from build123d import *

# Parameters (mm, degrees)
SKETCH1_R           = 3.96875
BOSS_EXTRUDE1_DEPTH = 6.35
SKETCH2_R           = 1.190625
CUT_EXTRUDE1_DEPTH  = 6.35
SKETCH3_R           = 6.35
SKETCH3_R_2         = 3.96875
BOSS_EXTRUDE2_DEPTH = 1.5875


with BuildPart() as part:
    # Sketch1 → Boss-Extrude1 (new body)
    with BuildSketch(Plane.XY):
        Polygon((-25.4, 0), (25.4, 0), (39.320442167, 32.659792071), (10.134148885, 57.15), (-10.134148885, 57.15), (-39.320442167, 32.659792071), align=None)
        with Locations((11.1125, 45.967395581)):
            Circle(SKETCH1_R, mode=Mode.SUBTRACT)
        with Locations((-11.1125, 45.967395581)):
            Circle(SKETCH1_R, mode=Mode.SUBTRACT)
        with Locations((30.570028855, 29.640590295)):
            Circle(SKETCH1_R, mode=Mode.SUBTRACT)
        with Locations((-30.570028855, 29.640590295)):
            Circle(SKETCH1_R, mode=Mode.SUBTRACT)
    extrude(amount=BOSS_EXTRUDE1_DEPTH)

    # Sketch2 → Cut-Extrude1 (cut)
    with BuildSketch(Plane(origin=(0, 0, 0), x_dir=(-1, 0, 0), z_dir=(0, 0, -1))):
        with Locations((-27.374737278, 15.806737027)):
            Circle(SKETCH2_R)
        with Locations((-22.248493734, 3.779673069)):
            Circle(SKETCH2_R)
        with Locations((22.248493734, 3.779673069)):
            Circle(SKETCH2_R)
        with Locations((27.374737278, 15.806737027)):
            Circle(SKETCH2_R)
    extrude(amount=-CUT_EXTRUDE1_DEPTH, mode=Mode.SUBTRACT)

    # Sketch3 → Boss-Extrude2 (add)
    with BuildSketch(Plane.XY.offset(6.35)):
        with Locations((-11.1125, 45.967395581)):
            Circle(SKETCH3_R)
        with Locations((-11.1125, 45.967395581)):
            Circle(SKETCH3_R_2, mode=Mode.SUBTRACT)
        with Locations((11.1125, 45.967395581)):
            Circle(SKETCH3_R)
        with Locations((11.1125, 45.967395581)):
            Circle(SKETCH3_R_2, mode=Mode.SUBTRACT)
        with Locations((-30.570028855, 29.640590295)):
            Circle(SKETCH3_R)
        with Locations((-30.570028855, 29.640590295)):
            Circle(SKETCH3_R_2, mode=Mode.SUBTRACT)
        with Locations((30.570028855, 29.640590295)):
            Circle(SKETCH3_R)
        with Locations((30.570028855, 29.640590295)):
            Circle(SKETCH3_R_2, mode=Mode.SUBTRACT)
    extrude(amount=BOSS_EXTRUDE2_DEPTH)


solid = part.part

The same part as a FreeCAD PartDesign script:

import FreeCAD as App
import Part
import Sketcher
from FreeCAD import Vector
Q = App.Units.Quantity

doc = App.newDocument("Part")
body = doc.addObject("PartDesign::Body", "Body")

# Sketch on XY plane
sketch1 = body.newObject("Sketcher::SketchObject", "Sketch")
sketch1.AttachmentSupport = (doc.getObject("XY_Plane"), [""])
sketch1.MapMode = "FlatFace"
sketch1.addGeometry([
    Part.LineSegment(Vector(-25.4, 0, 0), Vector(25.4, 0, 0)),  # 0
    Part.LineSegment(Vector(25.4, 0, 0), Vector(39.3, 32.7, 0)),  # 1
    Part.LineSegment(Vector(39.3, 32.7, 0), Vector(10.1, 57.1, 0)),  # 2
    Part.LineSegment(Vector(10.1, 57.1, 0), Vector(-10.1, 57.1, 0)),  # 3
    Part.LineSegment(Vector(-10.1, 57.1, 0), Vector(-39.3, 32.7, 0)),  # 4
    Part.LineSegment(Vector(-39.3, 32.7, 0), Vector(-25.4, 0, 0)),  # 5
    Part.Circle(Vector(-30.6, 29.6, 0), Vector(0, 0, 1), 4),  # 6
    Part.Circle(Vector(30.6, 29.6, 0), Vector(0, 0, 1), 4),  # 7
    Part.Circle(Vector(-11.1, 46, 0), Vector(0, 0, 1), 4),  # 8
    Part.Circle(Vector(11.1, 46, 0), Vector(0, 0, 1), 4),  # 9
], False)
sketch1.addConstraint([
    Sketcher.Constraint("Coincident", 0, 2, 1, 1),
    Sketcher.Constraint("Coincident", 1, 2, 2, 1),
    Sketcher.Constraint("Coincident", 2, 2, 3, 1),
    Sketcher.Constraint("Coincident", 3, 2, 4, 1),
    Sketcher.Constraint("Coincident", 4, 2, 5, 1),
    Sketcher.Constraint("Coincident", 5, 2, 0, 1),
    Sketcher.Constraint("Horizontal", 0),
    Sketcher.Constraint("Horizontal", 3),
    Sketcher.Constraint("Equal", 6, 7),
    Sketcher.Constraint("Equal", 7, 8),
    Sketcher.Constraint("Equal", 8, 9),
    Sketcher.Constraint("Symmetric", 0, 2, 5, 2, -1, 1),
    Sketcher.Constraint("Symmetric", 6, 3, 7, 3, -2),
    Sketcher.Constraint("Symmetric", 8, 3, 9, 3, -2),
    Sketcher.Constraint("Symmetric", 1, 2, 4, 2, -2),
    Sketcher.Constraint("Equal", 2, 4),
    Sketcher.Constraint("DistanceX", 0, 1, 0, 2, Q("2 in")),
    Sketcher.Constraint("Diameter", 6, Q("0.3125 in")),
    Sketcher.Constraint("Angle", 2, Q("140 deg")),
    Sketcher.Constraint("Distance", 2, Q("1.5 in")),
    Sketcher.Constraint("DistanceY", -1, 1, 2, 2, Q("2.25 in")),
    Sketcher.Constraint("DistanceX", 8, 3, -1, 1, Q("0.4375 in")),
    Sketcher.Constraint("DistanceY", 7, 3, 1, 2, Q("3.019202 mm")),
    Sketcher.Constraint("DistanceX", 3, 2, 3, 1, Q("20.268298 mm")),
    Sketcher.Constraint("DistanceX", 6, 3, -1, 1, Q("30.570029 mm")),
    Sketcher.Constraint("DistanceY", -1, 1, 8, 3, Q("45.967396 mm")),
])
pad1 = body.newObject("PartDesign::Pad", "Pad")
pad1.Profile = sketch1
pad1.Length = Q("0.25 in")

# Sketch on XY plane
sketch2 = body.newObject("Sketcher::SketchObject", "Sketch001")
sketch2.AttachmentSupport = (doc.getObject("XY_Plane"), [""])
sketch2.MapMode = "FlatFace"
sketch2.addGeometry([
    Part.Circle(Vector(27.4, 15.8, 0), Vector(0, 0, 1), 1.2),
    Part.Circle(Vector(22.2, 3.8, 0), Vector(0, 0, 1), 1.2),
    Part.Circle(Vector(-22.2, 3.8, 0), Vector(0, 0, 1), 1.2),
    Part.Circle(Vector(-27.4, 15.8, 0), Vector(0, 0, 1), 1.2),
], False)
sketch2.addConstraint([
    Sketcher.Constraint("Equal", 0, 1),
    Sketcher.Constraint("Equal", 1, 2),
    Sketcher.Constraint("Equal", 2, 3),
    Sketcher.Constraint("Symmetric", 1, 3, 2, 3, -2),
    Sketcher.Constraint("Symmetric", 0, 3, 3, 3, -2),
    Sketcher.Constraint("Diameter", 0, Q("0.09375 in")),
    Sketcher.Constraint("DistanceX", 2, 3, 0, 3, Q("49.623231 mm")),
    Sketcher.Constraint("DistanceX", -1, 1, 0, 3, Q("27.374737 mm")),
    Sketcher.Constraint("DistanceY", -1, 1, 0, 3, Q("15.806737 mm")),
    Sketcher.Constraint("DistanceY", -1, 1, 1, 3, Q("3.779673 mm")),
])
pocket1 = body.newObject("PartDesign::Pocket", "Pocket")
pocket1.Profile = sketch2
pocket1.Length = Q("0.25 in")
pocket1.Reversed = True

# Sketch on XY plane
sketch3 = body.newObject("Sketcher::SketchObject", "Sketch002")
sketch3.AttachmentSupport = (doc.getObject("XY_Plane"), [""])
sketch3.MapMode = "FlatFace"
sketch3.AttachmentOffset = App.Placement(Vector(0, 0, 0.25 * 25.4), App.Rotation())
sketch3.addGeometry([
    Part.Circle(Vector(-11.1, 46, 0), Vector(0, 0, 1), 6.3),  # 0
    Part.Circle(Vector(-11.1, 46, 0), Vector(0, 0, 1), 4),  # 1
    Part.Circle(Vector(11.1, 46, 0), Vector(0, 0, 1), 6.3),  # 2
    Part.Circle(Vector(11.1, 46, 0), Vector(0, 0, 1), 4),  # 3
    Part.Circle(Vector(-30.6, 29.6, 0), Vector(0, 0, 1), 6.3),  # 4
    Part.Circle(Vector(-30.6, 29.6, 0), Vector(0, 0, 1), 4),  # 5
    Part.Circle(Vector(30.6, 29.6, 0), Vector(0, 0, 1), 6.3),  # 6
    Part.Circle(Vector(30.6, 29.6, 0), Vector(0, 0, 1), 4),  # 7
], False)
sketch3.addConstraint([
    Sketcher.Constraint("Coincident", 1, 3, 0, 3),
    Sketcher.Constraint("Coincident", 3, 3, 2, 3),
    Sketcher.Constraint("Coincident", 5, 3, 4, 3),
    Sketcher.Constraint("Coincident", 7, 3, 6, 3),
    Sketcher.Constraint("Equal", 0, 2),
    Sketcher.Constraint("Equal", 1, 3),
    Sketcher.Constraint("Equal", 2, 4),
    Sketcher.Constraint("Equal", 3, 5),
    Sketcher.Constraint("Equal", 4, 6),
    Sketcher.Constraint("Equal", 5, 7),
    Sketcher.Constraint("Symmetric", 0, 3, 2, 3, -2),
    Sketcher.Constraint("Symmetric", 4, 3, 6, 3, -2),
    Sketcher.Constraint("Diameter", 0, Q("0.5 in")),
    Sketcher.Constraint("Diameter", 1, Q("0.3125 in")),
    Sketcher.Constraint("DistanceX", 0, 3, -1, 1, Q("0.4375 in")),
    Sketcher.Constraint("DistanceX", 4, 3, -1, 1, Q("30.570029 mm")),
    Sketcher.Constraint("DistanceY", -1, 1, 4, 3, Q("29.64059 mm")),
    Sketcher.Constraint("DistanceY", -1, 1, 0, 3, Q("45.967396 mm")),
])
pad2 = body.newObject("PartDesign::Pad", "Pad001")
pad2.Profile = sketch3
pad2.Length = Q("0.0625 in")

doc.recompute()
